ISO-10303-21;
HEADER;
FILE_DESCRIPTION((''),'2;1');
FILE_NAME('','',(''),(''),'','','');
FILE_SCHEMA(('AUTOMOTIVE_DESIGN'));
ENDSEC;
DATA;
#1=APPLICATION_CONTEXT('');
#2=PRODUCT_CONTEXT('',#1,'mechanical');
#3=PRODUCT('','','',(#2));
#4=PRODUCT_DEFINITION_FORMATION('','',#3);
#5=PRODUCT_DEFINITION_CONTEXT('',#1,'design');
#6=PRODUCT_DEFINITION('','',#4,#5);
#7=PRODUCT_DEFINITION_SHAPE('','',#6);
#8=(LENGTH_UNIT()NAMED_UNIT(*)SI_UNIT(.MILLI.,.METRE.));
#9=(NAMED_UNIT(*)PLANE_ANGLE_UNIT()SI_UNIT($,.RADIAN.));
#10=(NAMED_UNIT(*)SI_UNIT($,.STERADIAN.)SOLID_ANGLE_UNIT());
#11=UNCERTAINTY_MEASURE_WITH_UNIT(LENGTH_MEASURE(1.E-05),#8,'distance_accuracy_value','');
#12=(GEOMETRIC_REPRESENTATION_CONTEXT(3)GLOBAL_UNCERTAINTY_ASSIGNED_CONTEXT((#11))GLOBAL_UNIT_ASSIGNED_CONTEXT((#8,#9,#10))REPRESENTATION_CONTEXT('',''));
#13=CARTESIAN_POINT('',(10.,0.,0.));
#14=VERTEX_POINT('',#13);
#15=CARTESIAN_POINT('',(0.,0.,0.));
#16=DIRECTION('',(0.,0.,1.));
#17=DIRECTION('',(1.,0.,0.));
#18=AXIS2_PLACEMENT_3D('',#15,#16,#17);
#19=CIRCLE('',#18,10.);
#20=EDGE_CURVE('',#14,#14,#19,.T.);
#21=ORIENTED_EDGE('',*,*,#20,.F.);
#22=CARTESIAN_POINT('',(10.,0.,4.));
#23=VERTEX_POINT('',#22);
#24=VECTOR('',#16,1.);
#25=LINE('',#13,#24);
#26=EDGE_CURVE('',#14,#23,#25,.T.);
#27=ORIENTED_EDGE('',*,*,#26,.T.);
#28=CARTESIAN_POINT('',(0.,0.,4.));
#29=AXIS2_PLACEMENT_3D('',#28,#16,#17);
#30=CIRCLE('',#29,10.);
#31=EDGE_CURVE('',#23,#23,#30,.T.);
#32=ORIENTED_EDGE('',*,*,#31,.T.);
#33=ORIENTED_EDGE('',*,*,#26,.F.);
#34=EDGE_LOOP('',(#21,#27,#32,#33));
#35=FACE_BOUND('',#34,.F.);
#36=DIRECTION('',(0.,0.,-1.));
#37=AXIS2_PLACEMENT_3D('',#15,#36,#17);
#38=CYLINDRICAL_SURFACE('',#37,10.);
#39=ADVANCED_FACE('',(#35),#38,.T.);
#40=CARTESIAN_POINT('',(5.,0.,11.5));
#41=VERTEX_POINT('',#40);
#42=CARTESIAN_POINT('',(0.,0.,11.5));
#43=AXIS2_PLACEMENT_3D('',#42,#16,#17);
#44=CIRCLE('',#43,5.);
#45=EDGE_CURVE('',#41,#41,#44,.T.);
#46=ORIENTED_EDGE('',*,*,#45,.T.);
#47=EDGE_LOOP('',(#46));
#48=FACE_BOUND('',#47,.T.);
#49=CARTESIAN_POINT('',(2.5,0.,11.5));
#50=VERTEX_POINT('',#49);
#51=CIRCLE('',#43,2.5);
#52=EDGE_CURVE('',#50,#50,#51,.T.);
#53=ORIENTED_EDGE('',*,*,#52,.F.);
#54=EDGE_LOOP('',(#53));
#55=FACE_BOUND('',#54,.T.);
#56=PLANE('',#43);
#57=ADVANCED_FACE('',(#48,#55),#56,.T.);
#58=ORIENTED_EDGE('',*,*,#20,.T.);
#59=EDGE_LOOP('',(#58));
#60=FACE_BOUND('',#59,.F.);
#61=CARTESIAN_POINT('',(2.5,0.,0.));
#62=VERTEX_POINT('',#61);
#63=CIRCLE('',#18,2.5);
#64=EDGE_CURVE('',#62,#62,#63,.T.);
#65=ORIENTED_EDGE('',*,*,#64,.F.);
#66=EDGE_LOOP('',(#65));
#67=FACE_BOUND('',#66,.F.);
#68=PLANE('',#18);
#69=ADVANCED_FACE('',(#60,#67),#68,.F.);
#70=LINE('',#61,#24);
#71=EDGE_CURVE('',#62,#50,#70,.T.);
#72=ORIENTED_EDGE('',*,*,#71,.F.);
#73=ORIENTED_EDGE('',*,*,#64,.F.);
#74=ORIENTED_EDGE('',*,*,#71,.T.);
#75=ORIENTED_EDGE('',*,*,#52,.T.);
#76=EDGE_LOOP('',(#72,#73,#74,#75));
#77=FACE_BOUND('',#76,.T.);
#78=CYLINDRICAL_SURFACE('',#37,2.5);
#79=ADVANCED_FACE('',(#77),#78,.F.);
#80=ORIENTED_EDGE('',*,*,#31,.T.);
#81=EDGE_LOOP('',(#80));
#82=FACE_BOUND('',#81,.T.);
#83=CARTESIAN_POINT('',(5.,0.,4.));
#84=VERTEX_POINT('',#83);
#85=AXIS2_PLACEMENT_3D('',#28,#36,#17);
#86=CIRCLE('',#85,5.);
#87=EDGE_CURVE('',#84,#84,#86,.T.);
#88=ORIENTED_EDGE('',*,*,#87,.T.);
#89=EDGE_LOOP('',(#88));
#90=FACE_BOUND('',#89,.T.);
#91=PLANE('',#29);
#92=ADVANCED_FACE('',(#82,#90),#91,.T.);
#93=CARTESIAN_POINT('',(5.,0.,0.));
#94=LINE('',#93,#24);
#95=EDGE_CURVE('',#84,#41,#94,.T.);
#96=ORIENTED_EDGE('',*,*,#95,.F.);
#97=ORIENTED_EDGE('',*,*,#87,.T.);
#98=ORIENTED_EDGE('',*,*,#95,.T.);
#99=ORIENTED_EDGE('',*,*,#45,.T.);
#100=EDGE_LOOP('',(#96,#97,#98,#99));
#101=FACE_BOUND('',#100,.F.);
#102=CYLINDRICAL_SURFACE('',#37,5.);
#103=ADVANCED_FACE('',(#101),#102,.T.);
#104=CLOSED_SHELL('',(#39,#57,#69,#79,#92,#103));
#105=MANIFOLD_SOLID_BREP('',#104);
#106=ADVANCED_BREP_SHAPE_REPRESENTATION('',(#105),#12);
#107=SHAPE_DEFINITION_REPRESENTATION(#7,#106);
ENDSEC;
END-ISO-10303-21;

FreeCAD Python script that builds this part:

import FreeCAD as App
import Part
import Sketcher

V = App.Vector

doc = App.newDocument("Part")
body = doc.addObject("PartDesign::Body", "Body")

# Sketch on XY plane
sketch1 = body.newObject("Sketcher::SketchObject", "Sketch")
sketch1.AttachmentSupport = (doc.getObject("XY_Plane"), [""])
sketch1.MapMode = "FlatFace"
sketch1.addGeometry(Part.Circle(V(0, 0, 0), V(0, 0, 1), 2.5), False)
sketch1.addConstraint(Sketcher.Constraint("Coincident", 0, 3, -1, 1))
sketch1.addConstraint(Sketcher.Constraint("Diameter", 0, 5.0))
pad1 = body.newObject("PartDesign::Pad", "Pad")
pad1.Profile = sketch1
pad1.Length = 11.5
body2 = doc.addObject("PartDesign::Body", "Body001")

# Sketch on XY plane
sketch2 = body2.newObject("Sketcher::SketchObject", "Sketch001")
sketch2.AttachmentSupport = (doc.getObject("XY_Plane001"), [""])
sketch2.MapMode = "FlatFace"
sketch2.addGeometry(Part.Circle(V(0, 0, 0), V(0, 0, 1), 5), False)
sketch2.addConstraint(Sketcher.Constraint("Coincident", 0, 3, -1, 1))
sketch2.addConstraint(Sketcher.Constraint("Diameter", 0, 10.0))
pad2 = body2.newObject("PartDesign::Pad", "Pad001")
pad2.Profile = sketch2
pad2.Length = 11.5
body3 = doc.addObject("PartDesign::Body", "Body002")

# Sketch on XY plane
sketch3 = body3.newObject("Sketcher::SketchObject", "Sketch002")
sketch3.AttachmentSupport = (doc.getObject("XY_Plane002"), [""])
sketch3.MapMode = "FlatFace"
sketch3.addGeometry(Part.Circle(V(0, 0, 0), V(0, 0, 1), 10), False)
sketch3.addConstraint(Sketcher.Constraint("Coincident", 0, 3, -1, 1))
sketch3.addConstraint(Sketcher.Constraint("Diameter", 0, 20.0))
pad3 = body3.newObject("PartDesign::Pad", "Pad002")
pad3.Profile = sketch3
pad3.Length = 4
doc.recompute()

boolean = body3.newObject("PartDesign::Boolean", "Boolean")
boolean.Type = "Fuse"
boolean.addObjects([body2])
doc.recompute()

boolean2 = body3.newObject("PartDesign::Boolean", "Boolean001")
boolean2.Type = "Cut"
boolean2.addObjects([body])

doc.recompute()
